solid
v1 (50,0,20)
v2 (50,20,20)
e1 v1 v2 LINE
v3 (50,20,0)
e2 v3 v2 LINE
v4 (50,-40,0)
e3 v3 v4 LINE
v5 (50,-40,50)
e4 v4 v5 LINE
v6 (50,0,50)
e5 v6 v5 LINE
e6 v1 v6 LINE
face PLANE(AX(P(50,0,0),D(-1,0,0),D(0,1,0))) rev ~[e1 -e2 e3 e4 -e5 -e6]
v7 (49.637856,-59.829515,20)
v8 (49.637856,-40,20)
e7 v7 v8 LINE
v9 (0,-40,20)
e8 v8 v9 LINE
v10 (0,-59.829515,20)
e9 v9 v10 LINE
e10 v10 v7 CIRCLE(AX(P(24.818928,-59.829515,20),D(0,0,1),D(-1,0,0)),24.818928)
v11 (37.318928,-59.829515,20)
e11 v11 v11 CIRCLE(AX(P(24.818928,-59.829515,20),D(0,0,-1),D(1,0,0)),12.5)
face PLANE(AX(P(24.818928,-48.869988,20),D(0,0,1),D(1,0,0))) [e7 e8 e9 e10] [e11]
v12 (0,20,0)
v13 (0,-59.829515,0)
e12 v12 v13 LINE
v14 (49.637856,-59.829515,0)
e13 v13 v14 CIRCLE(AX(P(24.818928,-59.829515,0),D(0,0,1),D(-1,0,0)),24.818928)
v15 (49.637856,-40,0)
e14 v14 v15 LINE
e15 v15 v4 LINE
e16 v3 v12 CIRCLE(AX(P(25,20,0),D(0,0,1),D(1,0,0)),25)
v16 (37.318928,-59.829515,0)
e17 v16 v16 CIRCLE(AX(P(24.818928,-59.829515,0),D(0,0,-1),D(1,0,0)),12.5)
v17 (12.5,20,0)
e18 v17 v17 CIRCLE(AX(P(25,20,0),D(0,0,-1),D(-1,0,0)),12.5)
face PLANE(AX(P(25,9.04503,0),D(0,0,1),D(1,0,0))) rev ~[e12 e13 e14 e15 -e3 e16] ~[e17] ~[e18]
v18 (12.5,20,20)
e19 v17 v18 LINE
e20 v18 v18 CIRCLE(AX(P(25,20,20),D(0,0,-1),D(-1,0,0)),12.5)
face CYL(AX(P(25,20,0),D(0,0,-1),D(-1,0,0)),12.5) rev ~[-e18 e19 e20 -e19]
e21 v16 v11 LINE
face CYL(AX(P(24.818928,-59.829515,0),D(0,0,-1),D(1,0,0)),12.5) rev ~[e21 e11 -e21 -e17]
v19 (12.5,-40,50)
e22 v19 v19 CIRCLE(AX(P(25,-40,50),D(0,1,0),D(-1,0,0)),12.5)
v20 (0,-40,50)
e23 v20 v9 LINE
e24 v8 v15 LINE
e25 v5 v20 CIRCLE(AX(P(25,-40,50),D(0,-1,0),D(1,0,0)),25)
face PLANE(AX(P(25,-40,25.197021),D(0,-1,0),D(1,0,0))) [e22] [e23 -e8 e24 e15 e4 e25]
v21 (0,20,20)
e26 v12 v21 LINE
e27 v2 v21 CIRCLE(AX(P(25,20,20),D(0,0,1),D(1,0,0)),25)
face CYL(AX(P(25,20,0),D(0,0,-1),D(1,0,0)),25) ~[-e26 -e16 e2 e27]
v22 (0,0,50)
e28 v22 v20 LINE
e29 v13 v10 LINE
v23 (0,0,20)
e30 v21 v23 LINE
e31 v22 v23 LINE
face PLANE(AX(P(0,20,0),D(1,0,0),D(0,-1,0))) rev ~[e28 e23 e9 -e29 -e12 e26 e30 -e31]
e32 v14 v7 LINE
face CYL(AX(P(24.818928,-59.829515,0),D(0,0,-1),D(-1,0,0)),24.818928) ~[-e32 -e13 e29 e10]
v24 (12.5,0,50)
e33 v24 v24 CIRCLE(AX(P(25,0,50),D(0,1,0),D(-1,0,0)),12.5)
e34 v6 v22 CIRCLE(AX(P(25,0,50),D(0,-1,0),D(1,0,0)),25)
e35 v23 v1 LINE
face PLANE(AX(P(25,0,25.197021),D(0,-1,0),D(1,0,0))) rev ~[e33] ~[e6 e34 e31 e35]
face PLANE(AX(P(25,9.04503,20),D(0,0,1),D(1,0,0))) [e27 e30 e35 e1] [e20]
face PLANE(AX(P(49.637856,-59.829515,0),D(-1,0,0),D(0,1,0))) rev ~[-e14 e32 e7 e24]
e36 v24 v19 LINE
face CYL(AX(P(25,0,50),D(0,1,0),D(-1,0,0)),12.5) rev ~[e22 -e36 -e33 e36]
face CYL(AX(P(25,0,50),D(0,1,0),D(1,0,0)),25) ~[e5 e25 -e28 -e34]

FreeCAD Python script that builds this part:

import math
import FreeCAD as App
import Part
import Sketcher

V = App.Vector
Q = App.Units.Quantity

doc = App.newDocument("Part")
body = doc.addObject("PartDesign::Body", "Body")

# Sketch on XZ plane
sketch1 = body.newObject("Sketcher::SketchObject", "Sketch")
sketch1.AttachmentSupport = (doc.getObject("XZ_Plane"), [""])
sketch1.MapMode = "FlatFace"
sketch1.addGeometry([
    Part.LineSegment(V(0, 50, 0), V(0, 0, 0)),  # 0
    Part.LineSegment(V(0, 0, 0), V(50, 0, 0)),  # 1
    Part.LineSegment(V(50, 0, 0), V(50, 50, 0)),  # 2
    Part.ArcOfCircle(Part.Circle(V(25, 50, 0), V(0, 0, 1), 25), math.radians(0), math.radians(180)),  # 3
    Part.Circle(V(25, 50, 0), V(0, 0, 1), 12),  # 4
], False)
sketch1.addConstraint([
    Sketcher.Constraint("Coincident", 0, 2, 1, 1),
    Sketcher.Constraint("Coincident", 1, 2, 2, 1),
    Sketcher.Constraint("Tangent", 2, 2, 3, 1),
    Sketcher.Constraint("Tangent", 3, 2, 0, 1),
    Sketcher.Constraint("Vertical", 0),
    Sketcher.Constraint("Horizontal", 1),
    Sketcher.Constraint("Vertical", 2),
    Sketcher.Constraint("Coincident", 0, 2, -1, 1),
    Sketcher.Constraint("Coincident", 4, 3, 3, 3),
    Sketcher.Constraint("Equal", 1, 0),
    Sketcher.Constraint("Diameter", 4, Q("25 mm")),
    Sketcher.Constraint("Radius", 3, Q("25 mm")),
])
pad1 = body.newObject("PartDesign::Pad", "Pad")
pad1.Profile = sketch1
pad1.Length = 40

# Sketch on XY plane
sketch2 = body.newObject("Sketcher::SketchObject", "Sketch001")
sketch2.AttachmentSupport = (doc.getObject("XY_Plane"), [""])
sketch2.MapMode = "FlatFace"
sketch2.addGeometry([
    Part.LineSegment(V(0, 20, 0), V(0, 0, 0)),  # 0
    Part.LineSegment(V(0, 0, 0), V(50, 0, 0)),  # 1
    Part.LineSegment(V(50, 0, 0), V(50, 20, 0)),  # 2
    Part.ArcOfCircle(Part.Circle(V(25, 20, 0), V(0, 0, 1), 25), math.radians(0), math.radians(180)),  # 3
    Part.Circle(V(25, 20, 0), V(0, 0, 1), 12),  # 4
], False)
sketch2.addConstraint([
    Sketcher.Constraint("Coincident", 0, 2, 1, 1),
    Sketcher.Constraint("Coincident", 1, 2, 2, 1),
    Sketcher.Constraint("Tangent", 2, 2, 3, 1),
    Sketcher.Constraint("Tangent", 3, 2, 0, 1),
    Sketcher.Constraint("Vertical", 0),
    Sketcher.Constraint("Horizontal", 1),
    Sketcher.Constraint("Vertical", 2),
    Sketcher.Constraint("Coincident", 0, 2, -1, 1),
    Sketcher.Constraint("Coincident", 4, 3, 3, 3),
    Sketcher.Constraint("Diameter", 4, Q("25 mm")),
    Sketcher.Constraint("Radius", 3, Q("25 mm")),
    Sketcher.Constraint("DistanceY", 0, 2, 0, 1, Q("20 mm")),
])
pad2 = body.newObject("PartDesign::Pad", "Pad001")
pad2.Profile = sketch2
pad2.Length = 20

# Sketch on XY plane
sketch3 = body.newObject("Sketcher::SketchObject", "Sketch002")
sketch3.AttachmentSupport = (doc.getObject("XY_Plane"), [""])
sketch3.MapMode = "FlatFace"
sketch3.addGeometry([
    Part.LineSegment(V(50, -40, 0), V(0, -40, 0)),  # 0
    Part.LineSegment(V(0, -40, 0), V(0, -60, 0)),  # 1
    Part.ArcOfCircle(Part.Circle(V(25, -60, 0), V(0, 0, 1), 25), math.radians(180), math.radians(360)),  # 2
    Part.LineSegment(V(50, -60, 0), V(50, -40, 0)),  # 3
    Part.Circle(V(25, -60, 0), V(0, 0, 1), 12),  # 4
], False)
sketch3.addConstraint([
    Sketcher.Constraint("Coincident", 0, 2, 1, 1),
    Sketcher.Constraint("Tangent", 1, 2, 2, 1),
    Sketcher.Constraint("Tangent", 2, 2, 3, 1),
    Sketcher.Constraint("Coincident", 3, 2, 0, 1),
    Sketcher.Constraint("Horizontal", 0),
    Sketcher.Constraint("Vertical", 1),
    Sketcher.Constraint("Vertical", 3),
    Sketcher.Constraint("Coincident", 4, 3, 2, 3),
    Sketcher.Constraint("PointOnObject", 0, 2, -2),
    Sketcher.Constraint("Diameter", 4, Q("25 mm")),
    Sketcher.Constraint("DistanceY", 1, 2, 1, 1, Q("20 mm")),
    Sketcher.Constraint("Radius", 2, Q("24.818928 mm")),
    Sketcher.Constraint("DistanceY", 2, 3, -1, 1, Q("59.829515 mm")),
])
pad3 = body.newObject("PartDesign::Pad", "Pad002")
pad3.Profile = sketch3
pad3.Length = 20

doc.recompute()
